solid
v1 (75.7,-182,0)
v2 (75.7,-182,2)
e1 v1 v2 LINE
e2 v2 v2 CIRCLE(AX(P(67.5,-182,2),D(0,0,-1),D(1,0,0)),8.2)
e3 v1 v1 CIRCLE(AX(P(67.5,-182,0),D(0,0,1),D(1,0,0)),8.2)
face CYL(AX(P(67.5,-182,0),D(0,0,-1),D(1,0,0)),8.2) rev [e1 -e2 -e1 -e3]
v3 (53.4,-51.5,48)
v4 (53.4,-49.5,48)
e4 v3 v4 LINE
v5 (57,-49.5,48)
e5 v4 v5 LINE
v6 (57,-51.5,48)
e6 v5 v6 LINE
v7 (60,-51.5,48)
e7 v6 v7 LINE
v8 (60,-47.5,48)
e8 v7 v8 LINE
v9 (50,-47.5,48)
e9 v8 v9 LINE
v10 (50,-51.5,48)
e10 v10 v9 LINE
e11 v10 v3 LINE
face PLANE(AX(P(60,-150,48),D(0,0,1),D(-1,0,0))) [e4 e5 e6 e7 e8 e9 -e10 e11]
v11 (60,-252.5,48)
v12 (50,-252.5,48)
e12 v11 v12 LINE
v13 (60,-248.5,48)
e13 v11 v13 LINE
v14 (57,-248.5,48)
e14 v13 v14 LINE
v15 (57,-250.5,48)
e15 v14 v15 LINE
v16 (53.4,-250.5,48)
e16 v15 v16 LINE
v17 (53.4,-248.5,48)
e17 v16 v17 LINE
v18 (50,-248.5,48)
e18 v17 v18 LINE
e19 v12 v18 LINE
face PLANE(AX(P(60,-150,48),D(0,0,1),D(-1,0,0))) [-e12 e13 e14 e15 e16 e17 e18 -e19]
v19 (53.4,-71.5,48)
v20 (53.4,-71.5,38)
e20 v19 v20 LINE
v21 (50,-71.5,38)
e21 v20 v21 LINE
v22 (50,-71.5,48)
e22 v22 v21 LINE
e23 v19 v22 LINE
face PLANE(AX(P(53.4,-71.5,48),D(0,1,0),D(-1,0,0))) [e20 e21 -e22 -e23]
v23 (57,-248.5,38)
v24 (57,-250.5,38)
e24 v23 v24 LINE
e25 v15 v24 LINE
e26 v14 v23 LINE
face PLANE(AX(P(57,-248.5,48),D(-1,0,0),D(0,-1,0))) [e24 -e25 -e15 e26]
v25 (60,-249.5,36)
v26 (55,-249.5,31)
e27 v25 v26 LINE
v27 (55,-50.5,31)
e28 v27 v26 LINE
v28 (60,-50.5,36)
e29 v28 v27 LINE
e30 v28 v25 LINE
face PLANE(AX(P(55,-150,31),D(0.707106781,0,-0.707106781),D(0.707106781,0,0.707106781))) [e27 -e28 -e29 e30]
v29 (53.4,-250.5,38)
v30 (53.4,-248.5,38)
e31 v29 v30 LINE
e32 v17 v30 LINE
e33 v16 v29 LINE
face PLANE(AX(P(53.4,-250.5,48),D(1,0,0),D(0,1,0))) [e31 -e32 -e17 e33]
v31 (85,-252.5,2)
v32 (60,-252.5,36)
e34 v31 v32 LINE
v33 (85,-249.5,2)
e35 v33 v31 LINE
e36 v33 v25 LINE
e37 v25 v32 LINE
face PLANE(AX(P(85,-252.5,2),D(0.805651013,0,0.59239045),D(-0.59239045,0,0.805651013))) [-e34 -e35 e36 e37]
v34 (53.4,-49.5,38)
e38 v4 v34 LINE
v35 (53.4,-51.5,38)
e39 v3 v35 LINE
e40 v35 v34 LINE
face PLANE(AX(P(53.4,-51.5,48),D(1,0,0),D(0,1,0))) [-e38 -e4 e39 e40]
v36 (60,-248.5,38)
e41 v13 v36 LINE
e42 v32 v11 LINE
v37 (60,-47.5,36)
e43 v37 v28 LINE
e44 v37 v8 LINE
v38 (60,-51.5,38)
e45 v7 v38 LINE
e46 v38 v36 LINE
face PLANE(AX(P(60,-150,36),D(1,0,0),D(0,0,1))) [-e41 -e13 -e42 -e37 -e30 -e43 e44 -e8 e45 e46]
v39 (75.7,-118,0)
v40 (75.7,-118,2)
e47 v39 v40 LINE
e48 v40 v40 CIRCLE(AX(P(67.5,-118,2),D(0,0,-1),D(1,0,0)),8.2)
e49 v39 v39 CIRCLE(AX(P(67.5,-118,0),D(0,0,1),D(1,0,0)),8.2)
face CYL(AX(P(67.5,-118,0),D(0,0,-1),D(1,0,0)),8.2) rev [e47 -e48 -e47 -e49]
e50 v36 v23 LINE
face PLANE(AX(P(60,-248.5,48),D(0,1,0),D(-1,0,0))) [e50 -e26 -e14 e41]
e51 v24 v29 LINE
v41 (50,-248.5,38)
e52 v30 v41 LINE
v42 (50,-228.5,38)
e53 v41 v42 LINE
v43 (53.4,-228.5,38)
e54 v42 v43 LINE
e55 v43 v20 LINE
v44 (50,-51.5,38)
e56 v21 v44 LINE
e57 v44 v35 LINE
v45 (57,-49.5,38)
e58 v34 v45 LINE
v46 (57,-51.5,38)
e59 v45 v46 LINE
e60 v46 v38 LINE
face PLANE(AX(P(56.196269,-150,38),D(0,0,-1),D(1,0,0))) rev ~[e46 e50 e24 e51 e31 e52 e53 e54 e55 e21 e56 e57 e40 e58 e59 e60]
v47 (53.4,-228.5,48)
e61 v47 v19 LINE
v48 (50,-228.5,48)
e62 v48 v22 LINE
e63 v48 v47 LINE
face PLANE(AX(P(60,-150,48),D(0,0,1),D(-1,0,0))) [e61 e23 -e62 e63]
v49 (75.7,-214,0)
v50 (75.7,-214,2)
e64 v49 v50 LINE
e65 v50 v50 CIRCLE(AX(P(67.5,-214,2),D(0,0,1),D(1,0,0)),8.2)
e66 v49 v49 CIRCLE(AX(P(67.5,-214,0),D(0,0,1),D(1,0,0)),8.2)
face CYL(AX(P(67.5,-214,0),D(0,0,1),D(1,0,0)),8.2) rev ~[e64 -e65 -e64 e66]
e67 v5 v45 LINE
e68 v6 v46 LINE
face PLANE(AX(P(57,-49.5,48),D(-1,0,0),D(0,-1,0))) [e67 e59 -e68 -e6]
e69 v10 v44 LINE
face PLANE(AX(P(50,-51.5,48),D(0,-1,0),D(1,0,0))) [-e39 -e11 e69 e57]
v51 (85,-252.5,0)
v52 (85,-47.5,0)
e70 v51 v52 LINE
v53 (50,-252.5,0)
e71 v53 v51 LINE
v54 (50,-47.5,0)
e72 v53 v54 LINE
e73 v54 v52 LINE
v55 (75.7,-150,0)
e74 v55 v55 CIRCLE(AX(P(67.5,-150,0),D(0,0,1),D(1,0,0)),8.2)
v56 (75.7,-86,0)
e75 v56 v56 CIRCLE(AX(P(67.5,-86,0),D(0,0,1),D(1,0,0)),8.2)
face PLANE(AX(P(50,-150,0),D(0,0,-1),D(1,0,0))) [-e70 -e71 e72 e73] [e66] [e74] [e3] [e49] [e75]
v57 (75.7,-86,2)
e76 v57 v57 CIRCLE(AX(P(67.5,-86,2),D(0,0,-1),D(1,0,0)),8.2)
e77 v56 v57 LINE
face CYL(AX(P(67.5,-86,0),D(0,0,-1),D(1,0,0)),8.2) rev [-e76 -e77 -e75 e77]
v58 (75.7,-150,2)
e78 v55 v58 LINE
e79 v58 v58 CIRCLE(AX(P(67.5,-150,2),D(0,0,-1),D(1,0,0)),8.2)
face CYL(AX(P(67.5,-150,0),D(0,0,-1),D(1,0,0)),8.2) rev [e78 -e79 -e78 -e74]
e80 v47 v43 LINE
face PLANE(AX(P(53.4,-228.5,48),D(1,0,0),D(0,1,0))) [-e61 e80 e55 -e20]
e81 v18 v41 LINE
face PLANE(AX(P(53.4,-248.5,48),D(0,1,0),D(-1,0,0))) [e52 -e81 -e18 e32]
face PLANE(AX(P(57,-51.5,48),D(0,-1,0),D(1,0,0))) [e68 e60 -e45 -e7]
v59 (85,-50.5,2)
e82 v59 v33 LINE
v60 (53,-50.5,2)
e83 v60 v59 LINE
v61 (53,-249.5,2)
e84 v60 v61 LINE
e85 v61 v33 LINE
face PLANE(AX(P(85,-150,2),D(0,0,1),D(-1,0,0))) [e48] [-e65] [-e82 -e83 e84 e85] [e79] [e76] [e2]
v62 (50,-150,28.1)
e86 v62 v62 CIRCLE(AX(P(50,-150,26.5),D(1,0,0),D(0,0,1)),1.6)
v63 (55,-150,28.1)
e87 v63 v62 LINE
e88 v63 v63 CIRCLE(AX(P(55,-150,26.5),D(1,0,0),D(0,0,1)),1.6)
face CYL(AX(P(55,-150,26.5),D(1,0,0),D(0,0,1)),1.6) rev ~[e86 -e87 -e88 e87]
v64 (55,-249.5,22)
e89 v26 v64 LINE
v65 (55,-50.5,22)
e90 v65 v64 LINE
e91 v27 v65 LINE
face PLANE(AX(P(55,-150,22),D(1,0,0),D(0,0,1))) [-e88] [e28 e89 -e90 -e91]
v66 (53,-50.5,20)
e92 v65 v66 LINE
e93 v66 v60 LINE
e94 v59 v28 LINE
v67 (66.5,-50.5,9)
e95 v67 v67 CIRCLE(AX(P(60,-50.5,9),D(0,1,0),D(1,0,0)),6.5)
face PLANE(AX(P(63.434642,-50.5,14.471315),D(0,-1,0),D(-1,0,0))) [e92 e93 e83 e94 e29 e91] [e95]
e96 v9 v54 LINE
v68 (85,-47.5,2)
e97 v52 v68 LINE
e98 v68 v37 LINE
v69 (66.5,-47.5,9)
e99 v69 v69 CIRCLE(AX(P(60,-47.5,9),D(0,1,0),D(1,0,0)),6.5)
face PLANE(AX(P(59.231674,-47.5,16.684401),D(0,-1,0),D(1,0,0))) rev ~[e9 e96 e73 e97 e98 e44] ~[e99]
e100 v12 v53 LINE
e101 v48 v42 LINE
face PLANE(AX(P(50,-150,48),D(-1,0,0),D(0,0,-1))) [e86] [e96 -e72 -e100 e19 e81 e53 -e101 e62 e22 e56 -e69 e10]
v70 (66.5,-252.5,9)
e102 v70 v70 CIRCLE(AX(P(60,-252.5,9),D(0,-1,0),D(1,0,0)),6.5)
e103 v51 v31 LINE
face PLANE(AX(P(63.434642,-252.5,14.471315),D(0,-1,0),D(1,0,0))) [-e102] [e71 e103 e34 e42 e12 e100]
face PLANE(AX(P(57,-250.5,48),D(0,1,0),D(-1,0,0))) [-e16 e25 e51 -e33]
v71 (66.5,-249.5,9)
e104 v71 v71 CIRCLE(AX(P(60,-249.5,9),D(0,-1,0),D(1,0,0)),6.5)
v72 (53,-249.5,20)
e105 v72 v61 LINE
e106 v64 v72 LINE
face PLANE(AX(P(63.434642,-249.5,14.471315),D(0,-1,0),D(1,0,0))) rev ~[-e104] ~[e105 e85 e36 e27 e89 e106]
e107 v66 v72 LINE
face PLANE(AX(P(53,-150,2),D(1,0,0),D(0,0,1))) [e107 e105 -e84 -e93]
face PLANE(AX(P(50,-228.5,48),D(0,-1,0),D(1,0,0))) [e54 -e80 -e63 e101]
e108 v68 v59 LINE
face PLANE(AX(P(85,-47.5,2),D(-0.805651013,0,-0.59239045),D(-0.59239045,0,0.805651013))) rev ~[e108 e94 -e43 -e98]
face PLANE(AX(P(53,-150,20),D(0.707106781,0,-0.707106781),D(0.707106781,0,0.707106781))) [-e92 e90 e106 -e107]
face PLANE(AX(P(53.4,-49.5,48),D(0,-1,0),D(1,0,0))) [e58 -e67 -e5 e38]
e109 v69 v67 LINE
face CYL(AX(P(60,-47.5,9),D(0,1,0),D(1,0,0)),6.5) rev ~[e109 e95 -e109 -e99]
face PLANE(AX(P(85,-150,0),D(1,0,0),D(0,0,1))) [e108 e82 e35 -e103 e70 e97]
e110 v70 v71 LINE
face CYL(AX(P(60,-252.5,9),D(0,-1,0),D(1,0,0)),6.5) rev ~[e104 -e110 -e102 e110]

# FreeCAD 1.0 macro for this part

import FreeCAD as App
import Part
import Sketcher

V = App.Vector
Q = App.Units.Quantity

doc = App.newDocument("Part")
body = doc.addObject("PartDesign::Body", "Body")

# Sketch on XZ plane
sketch1 = body.newObject("Sketcher::SketchObject", "Sketch")
sketch1.AttachmentSupport = (doc.getObject("XZ_Plane"), [""])
sketch1.MapMode = "FlatFace"
sketch1.addGeometry([
    Part.LineSegment(V(0, 0, 0), V(35, 0, 0)),  # 0
    Part.LineSegment(V(35, 0, 0), V(35, 2, 0)),  # 1
    Part.LineSegment(V(35, 2, 0), V(3, 2, 0)),  # 2
    Part.LineSegment(V(3, 2, 0), V(3, 20, 0)),  # 3
    Part.LineSegment(V(3, 20, 0), V(5, 22, 0)),  # 4
    Part.LineSegment(V(5, 22, 0), V(5, 31, 0)),  # 5
    Part.LineSegment(V(5, 31, 0), V(10, 36, 0)),  # 6
    Part.LineSegment(V(10, 36, 0), V(10, 48, 0)),  # 7
    Part.LineSegment(V(10, 48, 0), V(0, 48, 0)),  # 8
    Part.LineSegment(V(0, 48, 0), V(0, 0, 0)),  # 9
], False)
sketch1.addConstraint([
    Sketcher.Constraint("Coincident", 0, 2, 1, 1),
    Sketcher.Constraint("Coincident", 1, 2, 2, 1),
    Sketcher.Constraint("Coincident", 2, 2, 3, 1),
    Sketcher.Constraint("Coincident", 3, 2, 4, 1),
    Sketcher.Constraint("Coincident", 4, 2, 5, 1),
    Sketcher.Constraint("Coincident", 5, 2, 6, 1),
    Sketcher.Constraint("Coincident", 6, 2, 7, 1),
    Sketcher.Constraint("Coincident", 7, 2, 8, 1),
    Sketcher.Constraint("Coincident", 8, 2, 9, 1),
    Sketcher.Constraint("Coincident", 9, 2, 0, 1),
    Sketcher.Constraint("Horizontal", 0),
    Sketcher.Constraint("Vertical", 1),
    Sketcher.Constraint("Horizontal", 2),
    Sketcher.Constraint("Vertical", 3),
    Sketcher.Constraint("Vertical", 5),
    Sketcher.Constraint("Vertical", 7),
    Sketcher.Constraint("Horizontal", 8),
    Sketcher.Constraint("Vertical", 9),
    Sketcher.Constraint("Coincident", 9, 2, -1, 1),
    Sketcher.Constraint("Parallel", 4, 6),
    Sketcher.Constraint("DistanceX", 0, 1, 0, 2, Q("35 mm")),
    Sketcher.Constraint("DistanceX", 2, 2, 2, 1, Q("32 mm")),
    Sketcher.Constraint("DistanceX", 8, 2, 8, 1, Q("10 mm")),
    Sketcher.Constraint("DistanceY", 1, 1, 1, 2, Q("2 mm")),
    Sketcher.Constraint("DistanceY", 3, 1, 3, 2, Q("18 mm")),
    Sketcher.Constraint("DistanceY", 5, 1, 5, 2, Q("9 mm")),
    Sketcher.Constraint("DistanceY", 7, 1, 7, 2, Q("12 mm")),
    Sketcher.Constraint("DistanceY", 9, 2, 9, 1, Q("48 mm")),
    Sketcher.Constraint("DistanceX", -1, 1, 4, 2, Q("5 mm")),
])
pad1 = body.newObject("PartDesign::Pad", "Pad")
pad1.Profile = sketch1
pad1.Length = 205
pad1.Midplane = True

# Sketch on XY plane
sketch2 = body.newObject("Sketcher::SketchObject", "Sketch001")
sketch2.AttachmentSupport = (doc.getObject("XY_Plane"), [""])
sketch2.MapMode = "FlatFace"
sketch2.AttachmentOffset = App.Placement(V(0, 0, 48), App.Rotation())
sketch2.addGeometry([
    Part.LineSegment(V(7, -98.5, 0), V(10, -98.5, 0)),  # 0
    Part.LineSegment(V(10, -98.5, 0), V(10, 98.5, 0)),  # 1
    Part.LineSegment(V(10, 98.5, 0), V(7, 98.5, 0)),  # 2
    Part.LineSegment(V(7, 98.5, 0), V(7, 100.5, 0)),  # 3
    Part.LineSegment(V(7, 100.5, 0), V(3.4, 100.5, 0)),  # 4
    Part.LineSegment(V(3.4, 100.5, 0), V(3.4, 98.5, 0)),  # 5
    Part.LineSegment(V(3.4, 98.5, 0), V(0, 98.5, 0)),  # 6
    Part.LineSegment(V(0, 98.5, 0), V(0, 78.5, 0)),  # 7
    Part.LineSegment(V(0, 78.5, 0), V(3.4, 78.5, 0)),  # 8
    Part.LineSegment(V(3.4, 78.5, 0), V(3.4, -78.5, 0)),  # 9
    Part.LineSegment(V(3.4, -78.5, 0), V(0, -78.5, 0)),  # 10
    Part.LineSegment(V(0, -78.5, 0), V(0, -98.5, 0)),  # 11
    Part.LineSegment(V(0, -98.5, 0), V(3.4, -98.5, 0)),  # 12
    Part.LineSegment(V(3.4, -98.5, 0), V(3.4, -100.5, 0)),  # 13
    Part.LineSegment(V(3.4, -100.5, 0), V(7, -100.5, 0)),  # 14
    Part.LineSegment(V(7, -100.5, 0), V(7, -98.5, 0)),  # 15
], False)
sketch2.addConstraint([
    Sketcher.Constraint("Coincident", 0, 2, 1, 1),
    Sketcher.Constraint("Coincident", 1, 2, 2, 1),
    Sketcher.Constraint("Coincident", 2, 2, 3, 1),
    Sketcher.Constraint("Coincident", 3, 2, 4, 1),
    Sketcher.Constraint("Coincident", 4, 2, 5, 1),
    Sketcher.Constraint("Coincident", 5, 2, 6, 1),
    Sketcher.Constraint("Coincident", 6, 2, 7, 1),
    Sketcher.Constraint("Coincident", 7, 2, 8, 1),
    Sketcher.Constraint("Coincident", 8, 2, 9, 1),
    Sketcher.Constraint("Coincident", 9, 2, 10, 1),
    Sketcher.Constraint("Coincident", 10, 2, 11, 1),
    Sketcher.Constraint("Coincident", 11, 2, 12, 1),
    Sketcher.Constraint("Coincident", 12, 2, 13, 1),
    Sketcher.Constraint("Coincident", 13, 2, 14, 1),
    Sketcher.Constraint("Coincident", 14, 2, 15, 1),
    Sketcher.Constraint("Coincident", 15, 2, 0, 1),
    Sketcher.Constraint("Horizontal", 0),
    Sketcher.Constraint("Vertical", 1),
    Sketcher.Constraint("Horizontal", 2),
    Sketcher.Constraint("Vertical", 3),
    Sketcher.Constraint("Horizontal", 4),
    Sketcher.Constraint("Vertical", 5),
    Sketcher.Constraint("Horizontal", 6),
    Sketcher.Constraint("Vertical", 7),
    Sketcher.Constraint("Horizontal", 8),
    Sketcher.Constraint("Vertical", 9),
    Sketcher.Constraint("Horizontal", 10),
    Sketcher.Constraint("Vertical", 11),
    Sketcher.Constraint("Horizontal", 12),
    Sketcher.Constraint("Vertical", 13),
    Sketcher.Constraint("Horizontal", 14),
    Sketcher.Constraint("Vertical", 15),
    Sketcher.Constraint("Symmetric", 7, 2, 10, 2, -1, 1),
    Sketcher.Constraint("Symmetric", 6, 2, 11, 2, -1),
    Sketcher.Constraint("Symmetric", 4, 2, 13, 2, -1),
    Sketcher.Constraint("Symmetric", 2, 2, 15, 2, -1),
    Sketcher.Constraint("Horizontal", 2, 2, 5, 2),
    Sketcher.Constraint("Vertical", 5, 2, 8, 2),
    Sketcher.Constraint("DistanceX", 0, 1, 0, 2, Q("3 mm")),
    Sketcher.Constraint("DistanceY", 1, 1, 1, 2, Q("197 mm")),
    Sketcher.Constraint("DistanceY", 3, 1, 3, 2, Q("2 mm")),
    Sketcher.Constraint("DistanceY", 7, 2, 7, 1, Q("20 mm")),
    Sketcher.Constraint("DistanceX", 4, 2, 4, 1, Q("3.6 mm")),
    Sketcher.Constraint("DistanceX", 6, 2, 6, 1, Q("3.4 mm")),
])
pocket1 = body.newObject("PartDesign::Pocket", "Pocket")
pocket1.Profile = sketch2
pocket1.Length = 10

# Sketch on YZ plane
sketch3 = body.newObject("Sketcher::SketchObject", "Sketch002")
sketch3.AttachmentSupport = (doc.getObject("YZ_Plane"), [""])
sketch3.MapMode = "FlatFace"
sketch3.AttachmentOffset = App.Placement(V(0, 0, 5), App.Rotation())
sketch3.addGeometry(Part.Circle(V(0, 26.5, 0), V(0, 0, 1), 1.6), False)
sketch3.addConstraint([
    Sketcher.Constraint("PointOnObject", 0, 3, -2),
    Sketcher.Constraint("Diameter", 0, Q("3.2 mm")),
    Sketcher.Constraint("DistanceY", -1, 1, 0, 3, Q("26.5 mm")),
])
pocket2 = body.newObject("PartDesign::Pocket", "Pocket001")
pocket2.Profile = sketch3
pocket2.Length = 5

# Sketch on XY plane
sketch4 = body.newObject("Sketcher::SketchObject", "Sketch003")
sketch4.AttachmentSupport = (doc.getObject("XY_Plane"), [""])
sketch4.MapMode = "FlatFace"
sketch4.addGeometry([
    Part.Circle(V(18, 0, 0), V(0, 0, 1), 8),  # 0
    Part.Circle(V(18, 64, 0), V(0, 0, 1), 8),  # 1
    Part.Circle(V(18, 32, 0), V(0, 0, 1), 8),  # 2
    Part.Circle(V(18, -32, 0), V(0, 0, 1), 8),  # 3
    Part.Circle(V(18, -64, 0), V(0, 0, 1), 8),  # 4
], False)
sketch4.addConstraint([
    Sketcher.Constraint("Equal", 0, 1),
    Sketcher.Constraint("Equal", 1, 2),
    Sketcher.Constraint("Equal", 2, 3),
    Sketcher.Constraint("Equal", 3, 4),
    Sketcher.Constraint("Symmetric", 2, 3, 3, 3, -1),
    Sketcher.Constraint("Symmetric", 1, 3, 4, 3, -1),
    Sketcher.Constraint("PointOnObject", 0, 3, -1),
    Sketcher.Constraint("Vertical", 0, 3, 1, 3),
    Sketcher.Constraint("Vertical", 1, 3, 2, 3),
    Sketcher.Constraint("Diameter", 0, Q("16.4 mm")),
    Sketcher.Constraint("DistanceY", -1, 1, 1, 3, Q("64 mm")),
    Sketcher.Constraint("DistanceY", -1, 1, 2, 3, Q("32 mm")),
    Sketcher.Constraint("DistanceX", -1, 1, 0, 3, Q("17.5 mm")),
])
pocket3 = body.newObject("PartDesign::Pocket", "Pocket002")
pocket3.Profile = sketch4
pocket3.Length = 5
pocket3.Midplane = True

# Sketch on XZ plane
sketch5 = body.newObject("Sketcher::SketchObject", "Sketch004")
sketch5.AttachmentSupport = (doc.getObject("XZ_Plane"), [""])
sketch5.MapMode = "FlatFace"
sketch5.AttachmentOffset = App.Placement(V(0, 0, -102.5), App.Rotation())
sketch5.addGeometry([
    Part.LineSegment(V(0, 0, 0), V(0, 36, 0)),  # 0
    Part.LineSegment(V(0, 36, 0), V(10, 36, 0)),  # 1
    Part.LineSegment(V(10, 36, 0), V(35, 2, 0)),  # 2
    Part.LineSegment(V(35, 2, 0), V(35, 0, 0)),  # 3
    Part.LineSegment(V(35, 0, 0), V(0, 0, 0)),  # 4
    Part.Circle(V(10, 9, 0), V(0, 0, 1), 6.5),  # 5
], False)
sketch5.addConstraint([
    Sketcher.Constraint("Coincident", 0, 2, 1, 1),
    Sketcher.Constraint("Coincident", 1, 2, 2, 1),
    Sketcher.Constraint("Coincident", 2, 2, 3, 1),
    Sketcher.Constraint("Coincident", 3, 2, 4, 1),
    Sketcher.Constraint("Coincident", 4, 2, 0, 1),
    Sketcher.Constraint("Vertical", 0),
    Sketcher.Constraint("Horizontal", 1),
    Sketcher.Constraint("Vertical", 3),
    Sketcher.Constraint("Horizontal", 4),
    Sketcher.Constraint("Coincident", 4, 2, -1, 1),
    Sketcher.Constraint("Vertical", 5, 3, 1, 2),
    Sketcher.Constraint("Diameter", 5, Q("13 mm")),
    Sketcher.Constraint("DistanceX", 1, 1, 1, 2, Q("10 mm")),
    Sketcher.Constraint("DistanceX", 4, 2, 4, 1, Q("35 mm")),
    Sketcher.Constraint("DistanceY", 0, 1, 0, 2, Q("36 mm")),
    Sketcher.Constraint("DistanceY", 3, 2, 3, 1, Q("2 mm")),
    Sketcher.Constraint("DistanceY", -1, 1, 5, 3, Q("9 mm")),
])
pad2 = body.newObject("PartDesign::Pad", "Pad001")
pad2.Profile = sketch5
pad2.Length = 3

# Sketch on XZ plane
sketch6 = body.newObject("Sketcher::SketchObject", "Sketch005")
sketch6.AttachmentSupport = (doc.getObject("XZ_Plane"), [""])
sketch6.MapMode = "FlatFace"
sketch6.AttachmentOffset = App.Placement(V(0, 0, 102.5), App.Rotation())
sketch6.addGeometry([
    Part.LineSegment(V(35, 2, 0), V(10, 36, 0)),  # 0
    Part.LineSegment(V(10, 36, 0), V(0, 36, 0)),  # 1
    Part.LineSegment(V(0, 36, 0), V(0, 0, 0)),  # 2
    Part.LineSegment(V(0, 0, 0), V(35, 0, 0)),  # 3
    Part.LineSegment(V(35, 0, 0), V(35, 2, 0)),  # 4
    Part.Circle(V(10, 9, 0), V(0, 0, 1), 6.5),  # 5
], False)
sketch6.addConstraint([
    Sketcher.Constraint("Coincident", 0, 2, 1, 1),
    Sketcher.Constraint("Coincident", 1, 2, 2, 1),
    Sketcher.Constraint("Coincident", 2, 2, 3, 1),
    Sketcher.Constraint("Coincident", 3, 2, 4, 1),
    Sketcher.Constraint("Coincident", 4, 2, 0, 1),
    Sketcher.Constraint("Horizontal", 1),
    Sketcher.Constraint("Vertical", 2),
    Sketcher.Constraint("Horizontal", 3),
    Sketcher.Constraint("Vertical", 4),
    Sketcher.Constraint("Coincident", 2, 2, -1, 1),
    Sketcher.Constraint("Vertical", 5, 3, 0, 2),
    Sketcher.Constraint("Diameter", 5, Q("13 mm")),
    Sketcher.Constraint("DistanceX", 1, 2, 1, 1, Q("10 mm")),
    Sketcher.Constraint("DistanceX", 3, 1, 3, 2, Q("35 mm")),
    Sketcher.Constraint("DistanceY", 2, 2, 2, 1, Q("36 mm")),
    Sketcher.Constraint("DistanceY", 4, 1, 4, 2, Q("2 mm")),
    Sketcher.Constraint("DistanceY", -1, 1, 5, 3, Q("9 mm")),
])
pad3 = body.newObject("PartDesign::Pad", "Pad002")
pad3.Profile = sketch6
pad3.Length = 3
pad3.Reversed = True
body2 = doc.addObject("PartDesign::Body", "Body001")
doc.recompute()

body.Placement = App.Placement(V(50, -150, 0), App.Rotation(V(0, 0, 1), 0))
boolean = body2.newObject("PartDesign::Boolean", "Boolean")
boolean.Type = "Fuse"
boolean.addObjects([body])

doc.recompute()
